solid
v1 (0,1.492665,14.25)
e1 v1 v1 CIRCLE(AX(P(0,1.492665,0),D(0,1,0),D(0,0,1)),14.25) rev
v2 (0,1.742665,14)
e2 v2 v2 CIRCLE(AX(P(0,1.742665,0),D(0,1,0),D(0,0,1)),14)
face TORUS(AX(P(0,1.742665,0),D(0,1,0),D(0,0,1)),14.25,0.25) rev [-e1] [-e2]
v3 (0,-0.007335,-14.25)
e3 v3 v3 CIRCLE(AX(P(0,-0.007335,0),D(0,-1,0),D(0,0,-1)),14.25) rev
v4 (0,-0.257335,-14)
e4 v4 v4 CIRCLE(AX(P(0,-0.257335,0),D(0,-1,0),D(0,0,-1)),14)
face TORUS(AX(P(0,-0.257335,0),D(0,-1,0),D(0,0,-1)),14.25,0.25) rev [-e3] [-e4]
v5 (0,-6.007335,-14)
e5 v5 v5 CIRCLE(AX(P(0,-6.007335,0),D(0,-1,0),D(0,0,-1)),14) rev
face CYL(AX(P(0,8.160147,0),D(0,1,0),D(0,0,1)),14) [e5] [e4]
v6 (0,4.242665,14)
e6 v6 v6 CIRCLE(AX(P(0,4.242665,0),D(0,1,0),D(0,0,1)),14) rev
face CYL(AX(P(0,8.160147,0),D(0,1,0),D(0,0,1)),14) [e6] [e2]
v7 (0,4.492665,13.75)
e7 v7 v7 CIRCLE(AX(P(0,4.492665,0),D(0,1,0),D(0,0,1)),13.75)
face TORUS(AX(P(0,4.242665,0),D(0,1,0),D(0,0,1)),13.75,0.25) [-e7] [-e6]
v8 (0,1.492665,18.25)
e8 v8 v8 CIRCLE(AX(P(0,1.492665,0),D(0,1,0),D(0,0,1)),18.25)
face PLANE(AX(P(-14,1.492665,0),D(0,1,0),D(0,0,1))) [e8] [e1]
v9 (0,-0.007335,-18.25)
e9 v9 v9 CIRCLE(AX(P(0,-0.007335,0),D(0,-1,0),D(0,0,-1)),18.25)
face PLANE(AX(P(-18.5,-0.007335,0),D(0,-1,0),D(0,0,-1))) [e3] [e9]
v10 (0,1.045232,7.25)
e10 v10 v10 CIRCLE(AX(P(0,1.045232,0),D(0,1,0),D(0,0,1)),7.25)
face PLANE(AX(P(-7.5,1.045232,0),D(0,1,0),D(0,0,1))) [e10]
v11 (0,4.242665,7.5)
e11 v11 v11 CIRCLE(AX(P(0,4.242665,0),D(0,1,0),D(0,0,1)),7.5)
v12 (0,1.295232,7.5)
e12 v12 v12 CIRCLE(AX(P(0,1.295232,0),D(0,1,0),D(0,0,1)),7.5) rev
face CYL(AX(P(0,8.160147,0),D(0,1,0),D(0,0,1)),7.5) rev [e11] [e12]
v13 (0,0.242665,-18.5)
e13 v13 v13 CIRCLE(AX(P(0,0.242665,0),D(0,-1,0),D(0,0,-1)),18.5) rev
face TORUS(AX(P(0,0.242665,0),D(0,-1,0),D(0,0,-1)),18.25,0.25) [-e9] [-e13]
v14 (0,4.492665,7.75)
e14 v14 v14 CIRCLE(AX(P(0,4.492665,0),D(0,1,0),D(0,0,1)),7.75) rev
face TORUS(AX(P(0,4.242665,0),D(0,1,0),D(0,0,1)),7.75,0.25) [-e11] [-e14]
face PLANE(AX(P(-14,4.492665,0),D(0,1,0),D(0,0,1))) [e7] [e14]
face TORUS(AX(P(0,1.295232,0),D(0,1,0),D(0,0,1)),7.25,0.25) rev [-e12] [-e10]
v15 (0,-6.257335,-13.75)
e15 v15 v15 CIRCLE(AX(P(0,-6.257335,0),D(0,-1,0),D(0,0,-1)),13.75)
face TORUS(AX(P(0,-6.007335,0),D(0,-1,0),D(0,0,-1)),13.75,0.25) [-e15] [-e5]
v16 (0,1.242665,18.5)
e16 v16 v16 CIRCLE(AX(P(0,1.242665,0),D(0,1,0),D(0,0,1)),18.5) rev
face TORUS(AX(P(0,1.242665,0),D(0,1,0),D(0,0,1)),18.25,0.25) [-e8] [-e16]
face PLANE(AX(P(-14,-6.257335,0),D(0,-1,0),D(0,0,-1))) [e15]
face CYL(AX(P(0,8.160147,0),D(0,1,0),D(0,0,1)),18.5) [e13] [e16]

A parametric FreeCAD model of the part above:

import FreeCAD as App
import Part
import Sketcher


def edges_at(feature, points):
    """Names of the edges that pass closest to the given points."""
    edges = feature.Shape.Edges
    near = lambda p: min(range(len(edges)), key=lambda i: edges[i].distToShape(Part.Vertex(*p))[0])
    return sorted({f"Edge{near(p) + 1}" for p in points})


def add_polygon(sketch, points):
    """Adds a closed chain of lines whose ends are joined by coincident constraints."""
    first, n = sketch.GeometryCount, len(points)
    for a, b in zip(points, points[1:] + points[:1]):
        sketch.addGeometry(Part.LineSegment(App.Vector(*a, 0), App.Vector(*b, 0)), False)
    for i in range(n):
        sketch.addConstraint(Sketcher.Constraint("Coincident", first + i, 2, first + (i + 1) % n, 1))

doc = App.newDocument("Part")
body = doc.addObject("PartDesign::Body", "Body")

# Sketch on XY plane
sketch1 = body.newObject("Sketcher::SketchObject", "Sketch")
sketch1.AttachmentSupport = (doc.getObject("XY_Plane"), [""])
sketch1.MapMode = "FlatFace"
add_polygon(sketch1, [(-7.5, 4.492665), (-14, 4.492665), (-14, 1.492665), (-18.5, 1.492665), (-18.5, -0.007335), (-14, -0.007335), (-14, -6.257335), (0, -6.257335), (0, 1.045232), (-7.5, 1.045232)])  # lines 0-9
sketch1.addConstraint(Sketcher.Constraint("Horizontal", 0))
sketch1.addConstraint(Sketcher.Constraint("Vertical", 1))
sketch1.addConstraint(Sketcher.Constraint("Horizontal", 2))
sketch1.addConstraint(Sketcher.Constraint("Vertical", 3))
sketch1.addConstraint(Sketcher.Constraint("Horizontal", 4))
sketch1.addConstraint(Sketcher.Constraint("Vertical", 5))
sketch1.addConstraint(Sketcher.Constraint("Horizontal", 6))
sketch1.addConstraint(Sketcher.Constraint("Vertical", 7))
sketch1.addConstraint(Sketcher.Constraint("Horizontal", 8))
sketch1.addConstraint(Sketcher.Constraint("Vertical", 9))
sketch1.addConstraint(Sketcher.Constraint("PointOnObject", 6, 2, -2))
sketch1.addConstraint(Sketcher.Constraint("Vertical", 1, 2, 4, 2))
sketch1.addConstraint(Sketcher.Constraint("DistanceX", 6, 1, 6, 2, 14.0))
sketch1.addConstraint(Sketcher.Constraint("DistanceY", 1, 2, 1, 1, 3.0))
sketch1.addConstraint(Sketcher.Constraint("DistanceX", 0, 2, 0, 1, 6.5))
sketch1.addConstraint(Sketcher.Constraint("DistanceX", 2, 2, 2, 1, 4.5))
sketch1.addConstraint(Sketcher.Constraint("DistanceY", 3, 2, 3, 1, 1.5))
sketch1.addConstraint(Sketcher.Constraint("DistanceY", 5, 2, 5, 1, 6.25))
sketch1.addConstraint(Sketcher.Constraint("DistanceY", 7, 1, 7, 2, 7.302567))
sketch1.addConstraint(Sketcher.Constraint("DistanceY", -1, 1, 0, 2, 4.492665))
revolution = body.newObject("PartDesign::Revolution", "Revolution")
revolution.Profile = sketch1
revolution.ReferenceAxis = (sketch1, ["V_Axis"])
revolution.Angle = 360
doc.recompute()

fillet = body.newObject("PartDesign::Fillet", "Fillet")
fillet.Base = (revolution, edges_at(revolution, [
    (0, 1.045, -7.5),
    (0, 4.493, -7.5),
    (0, 4.493, -14),
    (0, 1.493, -14),
    (0, 1.493, -18.5),
    (0, -0.007, -18.5),
    (0, -0.007, -14),
    (0, -6.257, -14),
]))
fillet.Radius = 0.25

doc.recompute()
